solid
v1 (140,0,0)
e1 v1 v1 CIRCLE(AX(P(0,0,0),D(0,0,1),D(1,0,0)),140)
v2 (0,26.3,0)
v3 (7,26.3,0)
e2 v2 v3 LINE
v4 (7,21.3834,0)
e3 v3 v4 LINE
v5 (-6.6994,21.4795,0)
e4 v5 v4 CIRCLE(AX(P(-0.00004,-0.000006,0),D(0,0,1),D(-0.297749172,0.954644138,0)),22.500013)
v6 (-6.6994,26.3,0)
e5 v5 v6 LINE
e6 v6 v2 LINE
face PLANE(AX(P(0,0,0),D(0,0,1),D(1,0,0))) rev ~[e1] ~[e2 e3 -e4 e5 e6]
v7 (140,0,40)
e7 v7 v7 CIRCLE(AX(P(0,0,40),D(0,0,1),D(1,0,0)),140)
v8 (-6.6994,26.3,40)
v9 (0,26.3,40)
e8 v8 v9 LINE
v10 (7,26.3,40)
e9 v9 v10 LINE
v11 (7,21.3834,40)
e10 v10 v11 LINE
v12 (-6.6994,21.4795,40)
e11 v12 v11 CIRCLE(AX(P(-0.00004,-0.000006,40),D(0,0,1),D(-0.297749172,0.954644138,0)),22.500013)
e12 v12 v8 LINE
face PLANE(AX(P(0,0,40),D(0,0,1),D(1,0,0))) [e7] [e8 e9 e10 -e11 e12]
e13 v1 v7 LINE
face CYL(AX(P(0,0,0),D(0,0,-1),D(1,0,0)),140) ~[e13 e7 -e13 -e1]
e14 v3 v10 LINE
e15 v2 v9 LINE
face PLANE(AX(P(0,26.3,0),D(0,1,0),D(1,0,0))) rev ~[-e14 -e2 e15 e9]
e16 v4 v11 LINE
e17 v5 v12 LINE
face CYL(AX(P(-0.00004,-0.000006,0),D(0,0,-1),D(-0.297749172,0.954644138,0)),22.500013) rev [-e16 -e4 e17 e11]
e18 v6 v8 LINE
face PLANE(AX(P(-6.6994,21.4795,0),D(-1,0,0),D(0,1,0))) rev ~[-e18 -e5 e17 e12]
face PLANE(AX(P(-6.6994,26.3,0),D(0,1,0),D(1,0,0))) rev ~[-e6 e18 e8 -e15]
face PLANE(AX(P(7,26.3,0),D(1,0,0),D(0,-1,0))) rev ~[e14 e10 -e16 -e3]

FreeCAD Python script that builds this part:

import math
import FreeCAD as App
import Part
import Sketcher

V = App.Vector
Q = App.Units.Quantity

doc = App.newDocument("Part")
body = doc.addObject("PartDesign::Body", "Body")

sketch1 = body.newObject("Sketcher::SketchObject", "Sketch")
sketch1.AttachmentSupport = (doc.getObject("XY_Plane"), [""])
sketch1.MapMode = "FlatFace"
sketch1.addGeometry(Part.Circle(V(0, 0, 0), V(0, 0, 1), 140), False)
sketch1.addGeometry(Part.ArcOfCircle(Part.Circle(V(0, 0, 0), V(0, 0, 1), 22.50002), math.radians(107.322564), math.radians(431.873792)), False)
sketch1.addGeometry(Part.LineSegment(V(-6.6994, 21.4795, 0), V(-6.6994, 26.3, 0)), False)
sketch1.addGeometry(Part.LineSegment(V(-6.6994, 26.3, 0), V(7, 26.3, 0)), False)
sketch1.addGeometry(Part.LineSegment(V(7, 26.3, 0), V(7, 21.3834, 0)), False)
sketch1.addConstraint(Sketcher.Constraint("Coincident", 1, 1, 2, 1))
sketch1.addConstraint(Sketcher.Constraint("Coincident", 2, 2, 3, 1))
sketch1.addConstraint(Sketcher.Constraint("Coincident", 3, 2, 4, 1))
sketch1.addConstraint(Sketcher.Constraint("Coincident", 4, 2, 1, 2))
sketch1.addConstraint(Sketcher.Constraint("Vertical", 2))
sketch1.addConstraint(Sketcher.Constraint("Horizontal", 3))
sketch1.addConstraint(Sketcher.Constraint("Vertical", 4))
sketch1.addConstraint(Sketcher.Constraint("Coincident", 0, 3, -1, 1))
sketch1.addConstraint(Sketcher.Constraint("Coincident", 1, 3, -1, 1))
sketch1.addConstraint(Sketcher.Constraint("Diameter", 0, Q("280 mm")))
sketch1.addConstraint(Sketcher.Constraint("Radius", 1, Q("22.5 mm")))
sketch1.addConstraint(Sketcher.Constraint("DistanceX", -1, 1, 3, 2, Q("7 mm")))
sketch1.addConstraint(Sketcher.Constraint("DistanceY", -1, 1, 2, 2, Q("26.3 mm")))
sketch1.addConstraint(Sketcher.Constraint("DistanceX", 3, 1, 3, 2, Q("13.6994 mm")))
pad1 = body.newObject("PartDesign::Pad", "Pad")
pad1.Profile = sketch1
pad1.Length = 40

doc.recompute()
